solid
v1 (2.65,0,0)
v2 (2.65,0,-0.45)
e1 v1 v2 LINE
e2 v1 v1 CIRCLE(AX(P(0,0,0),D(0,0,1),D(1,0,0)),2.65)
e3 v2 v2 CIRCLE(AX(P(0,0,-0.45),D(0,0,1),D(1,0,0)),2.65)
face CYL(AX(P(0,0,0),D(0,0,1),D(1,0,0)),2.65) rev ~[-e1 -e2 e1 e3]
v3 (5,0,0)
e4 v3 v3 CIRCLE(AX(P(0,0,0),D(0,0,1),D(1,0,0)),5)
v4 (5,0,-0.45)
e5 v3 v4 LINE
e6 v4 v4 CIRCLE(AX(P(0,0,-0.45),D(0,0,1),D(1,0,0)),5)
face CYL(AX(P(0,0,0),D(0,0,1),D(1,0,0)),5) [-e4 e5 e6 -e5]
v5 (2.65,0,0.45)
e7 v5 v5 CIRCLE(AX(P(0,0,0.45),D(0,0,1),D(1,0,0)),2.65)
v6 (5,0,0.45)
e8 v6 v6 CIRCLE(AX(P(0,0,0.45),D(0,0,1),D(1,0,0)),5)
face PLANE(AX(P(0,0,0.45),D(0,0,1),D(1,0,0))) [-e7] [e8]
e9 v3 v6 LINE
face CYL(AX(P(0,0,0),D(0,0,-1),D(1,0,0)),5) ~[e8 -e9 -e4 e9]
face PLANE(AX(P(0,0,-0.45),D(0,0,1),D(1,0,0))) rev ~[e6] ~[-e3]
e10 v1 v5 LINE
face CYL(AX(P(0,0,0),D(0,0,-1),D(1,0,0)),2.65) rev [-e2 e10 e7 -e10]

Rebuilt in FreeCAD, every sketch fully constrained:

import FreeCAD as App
import Part
import Sketcher

V = App.Vector
Q = App.Units.Quantity

doc = App.newDocument("Part")
body = doc.addObject("PartDesign::Body", "Body")

# Sketch on XY plane
sketch1 = doc.addObject("Sketcher::SketchObject", "Sketch")
body.addObject(sketch1)
sketch1.AttachmentSupport = (doc.XY_Plane, [""])
sketch1.MapMode = "FlatFace"
sketch1.addGeometry([
    Part.Circle(V(0, 0, 0), V(0, 0, 1), 5),
    Part.Circle(V(0, 0, 0), V(0, 0, 1), 2.6),
], False)
sketch1.addConstraint([
    Sketcher.Constraint("Coincident", 0, 3, -1, 1),
    Sketcher.Constraint("Coincident", 1, 3, -1, 1),
    Sketcher.Constraint("Diameter", 0, Q("10 mm")),
    Sketcher.Constraint("Diameter", 1, Q("5.3 mm")),
])
pad1 = doc.addObject("PartDesign::Pad", "Pad")
body.addObject(pad1)
pad1.Profile = sketch1
pad1.Length = 0.9
pad1.Midplane = True

doc.recompute()
